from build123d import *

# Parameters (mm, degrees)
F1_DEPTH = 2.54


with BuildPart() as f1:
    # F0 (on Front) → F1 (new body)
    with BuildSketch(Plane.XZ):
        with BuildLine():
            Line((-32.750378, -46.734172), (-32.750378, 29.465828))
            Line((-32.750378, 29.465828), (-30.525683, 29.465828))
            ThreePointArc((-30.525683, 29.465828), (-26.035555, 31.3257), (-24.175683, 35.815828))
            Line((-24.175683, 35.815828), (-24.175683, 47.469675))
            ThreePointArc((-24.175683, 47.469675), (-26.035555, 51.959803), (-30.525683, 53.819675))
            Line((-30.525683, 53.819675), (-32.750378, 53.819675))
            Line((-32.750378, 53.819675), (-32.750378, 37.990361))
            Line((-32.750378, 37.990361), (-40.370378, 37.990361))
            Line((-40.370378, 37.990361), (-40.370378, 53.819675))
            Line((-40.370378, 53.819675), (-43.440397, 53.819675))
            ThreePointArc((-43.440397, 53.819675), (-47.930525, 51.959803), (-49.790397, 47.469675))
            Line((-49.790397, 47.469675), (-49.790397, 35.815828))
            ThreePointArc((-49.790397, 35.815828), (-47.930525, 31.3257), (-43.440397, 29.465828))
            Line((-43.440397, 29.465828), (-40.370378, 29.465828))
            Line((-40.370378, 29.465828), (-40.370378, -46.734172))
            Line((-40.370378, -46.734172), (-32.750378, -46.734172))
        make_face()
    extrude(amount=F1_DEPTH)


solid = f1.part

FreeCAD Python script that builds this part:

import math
import FreeCAD as App
import Part
import Sketcher
from FreeCAD import Vector
Q = App.Units.Quantity

doc = App.newDocument("Part")
body = doc.addObject("PartDesign::Body", "Body")

# Sketch on XZ plane
sketch1 = body.newObject("Sketcher::SketchObject", "Sketch")
sketch1.AttachmentSupport = (doc.getObject("XZ_Plane"), [""])
sketch1.MapMode = "FlatFace"
sketch1.addGeometry([
    Part.LineSegment(Vector(-32.8, -46.7, 0), Vector(-32.8, 29.5, 0)),  # 0
    Part.LineSegment(Vector(-32.8, 29.5, 0), Vector(-30.5, 29.5, 0)),  # 1
    Part.ArcOfCircle(Part.Circle(Vector(-30.5, 35.8, 0), Vector(0, 0, 1), 6.4), math.radians(-90), math.radians(0)),  # 2
    Part.LineSegment(Vector(-24.2, 35.8, 0), Vector(-24.2, 47.5, 0)),  # 3
    Part.ArcOfCircle(Part.Circle(Vector(-30.5, 47.5, 0), Vector(0, 0, 1), 6.4), math.radians(0), math.radians(90)),  # 4
    Part.LineSegment(Vector(-30.5, 53.8, 0), Vector(-32.8, 53.8, 0)),  # 5
    Part.LineSegment(Vector(-32.8, 53.8, 0), Vector(-32.8, 38, 0)),  # 6
    Part.LineSegment(Vector(-32.8, 38, 0), Vector(-40.4, 38, 0)),  # 7
    Part.LineSegment(Vector(-40.4, 38, 0), Vector(-40.4, 53.8, 0)),  # 8
    Part.LineSegment(Vector(-40.4, 53.8, 0), Vector(-43.4, 53.8, 0)),  # 9
    Part.ArcOfCircle(Part.Circle(Vector(-43.4, 47.5, 0), Vector(0, 0, 1), 6.4), math.radians(90), math.radians(180)),  # 10
    Part.LineSegment(Vector(-49.8, 47.5, 0), Vector(-49.8, 35.8, 0)),  # 11
    Part.ArcOfCircle(Part.Circle(Vector(-43.4, 35.8, 0), Vector(0, 0, 1), 6.4), math.radians(-180), math.radians(-90)),  # 12
    Part.LineSegment(Vector(-43.4, 29.5, 0), Vector(-40.4, 29.5, 0)),  # 13
    Part.LineSegment(Vector(-40.4, 29.5, 0), Vector(-40.4, -46.7, 0)),  # 14
    Part.LineSegment(Vector(-40.4, -46.7, 0), Vector(-32.8, -46.7, 0)),  # 15
], False)
sketch1.addConstraint([
    Sketcher.Constraint("Coincident", 0, 2, 1, 1),
    Sketcher.Constraint("Tangent", 1, 2, 2, 1),
    Sketcher.Constraint("Tangent", 2, 2, 3, 1),
    Sketcher.Constraint("Tangent", 3, 2, 4, 1),
    Sketcher.Constraint("Tangent", 4, 2, 5, 1),
    Sketcher.Constraint("Coincident", 5, 2, 6, 1),
    Sketcher.Constraint("Coincident", 6, 2, 7, 1),
    Sketcher.Constraint("Coincident", 7, 2, 8, 1),
    Sketcher.Constraint("Coincident", 8, 2, 9, 1),
    Sketcher.Constraint("Tangent", 9, 2, 10, 1),
    Sketcher.Constraint("Tangent", 10, 2, 11, 1),
    Sketcher.Constraint("Tangent", 11, 2, 12, 1),
    Sketcher.Constraint("Tangent", 12, 2, 13, 1),
    Sketcher.Constraint("Coincident", 13, 2, 14, 1),
    Sketcher.Constraint("Coincident", 14, 2, 15, 1),
    Sketcher.Constraint("Coincident", 15, 2, 0, 1),
    Sketcher.Constraint("Vertical", 0),
    Sketcher.Constraint("Horizontal", 1),
    Sketcher.Constraint("Vertical", 3),
    Sketcher.Constraint("Horizontal", 5),
    Sketcher.Constraint("Vertical", 6),
    Sketcher.Constraint("Horizontal", 7),
    Sketcher.Constraint("Vertical", 8),
    Sketcher.Constraint("Horizontal", 9),
    Sketcher.Constraint("Vertical", 11),
    Sketcher.Constraint("Horizontal", 13),
    Sketcher.Constraint("Vertical", 14),
    Sketcher.Constraint("Horizontal", 15),
    Sketcher.Constraint("Equal", 2, 4),
    Sketcher.Constraint("Equal", 4, 10),
    Sketcher.Constraint("Equal", 10, 12),
    Sketcher.Constraint("Horizontal", 4, 3, 10, 3),
    Sketcher.Constraint("Horizontal", 2, 3, 12, 3),
    Sketcher.Constraint("Vertical", 0, 2, 5, 2),
    Sketcher.Constraint("Vertical", 8, 2, 13, 2),
    Sketcher.Constraint("DistanceY", 0, 1, 0, 2, Q("3 in")),
    Sketcher.Constraint("Radius", 2, Q("0.25 in")),
    Sketcher.Constraint("DistanceX", 7, 2, 7, 1, Q("0.3 in")),
    Sketcher.Constraint("DistanceX", 9, 2, 9, 1, 3.070019),
    Sketcher.Constraint("DistanceX", 1, 1, 1, 2, 2.224695),
    Sketcher.Constraint("DistanceY", 3, 1, 3, 2, 11.653847),
    Sketcher.Constraint("DistanceY", 6, 2, 6, 1, 15.829314),
    Sketcher.Constraint("DistanceY", -1, 1, 2, 3, 35.815828),
    Sketcher.Constraint("DistanceX", 7, 2, -1, 1, 40.370378),
])
pad1 = body.newObject("PartDesign::Pad", "Pad")
pad1.Profile = sketch1
pad1.Length = Q("0.1 in")

doc.recompute()
